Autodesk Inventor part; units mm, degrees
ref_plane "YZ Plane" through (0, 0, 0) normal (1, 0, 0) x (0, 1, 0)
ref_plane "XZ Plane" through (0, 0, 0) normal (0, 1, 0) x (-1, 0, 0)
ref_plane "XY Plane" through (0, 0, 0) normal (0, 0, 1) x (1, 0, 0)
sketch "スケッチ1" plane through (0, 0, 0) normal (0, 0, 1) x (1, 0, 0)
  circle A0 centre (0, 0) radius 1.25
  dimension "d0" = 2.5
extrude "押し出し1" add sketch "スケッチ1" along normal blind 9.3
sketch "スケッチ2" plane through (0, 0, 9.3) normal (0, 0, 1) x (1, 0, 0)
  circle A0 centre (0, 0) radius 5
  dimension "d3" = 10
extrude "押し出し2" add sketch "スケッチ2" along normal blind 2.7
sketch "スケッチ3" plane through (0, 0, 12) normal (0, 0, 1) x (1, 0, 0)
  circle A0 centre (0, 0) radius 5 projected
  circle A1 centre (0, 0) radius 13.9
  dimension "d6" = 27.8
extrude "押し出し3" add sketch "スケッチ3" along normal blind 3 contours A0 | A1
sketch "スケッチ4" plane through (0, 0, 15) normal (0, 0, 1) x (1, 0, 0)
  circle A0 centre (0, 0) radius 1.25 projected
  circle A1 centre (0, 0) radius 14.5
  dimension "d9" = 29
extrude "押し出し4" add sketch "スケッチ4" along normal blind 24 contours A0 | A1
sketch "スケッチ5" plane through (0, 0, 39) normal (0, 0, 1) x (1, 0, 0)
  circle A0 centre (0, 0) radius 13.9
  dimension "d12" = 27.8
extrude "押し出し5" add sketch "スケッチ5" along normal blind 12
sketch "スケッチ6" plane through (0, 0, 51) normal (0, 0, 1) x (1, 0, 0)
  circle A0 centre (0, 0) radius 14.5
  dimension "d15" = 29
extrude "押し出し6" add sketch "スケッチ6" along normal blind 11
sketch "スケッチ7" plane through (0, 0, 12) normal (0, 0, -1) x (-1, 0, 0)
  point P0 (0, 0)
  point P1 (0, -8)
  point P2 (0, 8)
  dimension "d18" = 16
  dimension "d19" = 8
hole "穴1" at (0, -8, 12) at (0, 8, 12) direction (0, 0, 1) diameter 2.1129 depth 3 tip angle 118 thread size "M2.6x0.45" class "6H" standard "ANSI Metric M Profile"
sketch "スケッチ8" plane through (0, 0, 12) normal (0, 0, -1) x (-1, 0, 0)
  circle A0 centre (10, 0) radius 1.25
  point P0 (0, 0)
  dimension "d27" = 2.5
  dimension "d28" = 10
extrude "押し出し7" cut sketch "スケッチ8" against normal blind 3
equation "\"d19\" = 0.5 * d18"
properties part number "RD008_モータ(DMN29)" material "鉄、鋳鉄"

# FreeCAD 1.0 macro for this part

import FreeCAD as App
import Part
import Sketcher
from FreeCAD import Vector
Q = App.Units.Quantity

doc = App.newDocument("Part")
body = doc.addObject("PartDesign::Body", "Body")

# Sketch on XY plane
sketch1 = body.newObject("Sketcher::SketchObject", "Sketch")
sketch1.AttachmentSupport = (doc.getObject("XY_Plane"), [""])
sketch1.MapMode = "FlatFace"
sketch1.addGeometry(Part.Circle(Vector(0, 0, 0), Vector(0, 0, 1), 1.25), False)
sketch1.addConstraint(Sketcher.Constraint("Coincident", 0, 3, -1, 1))
sketch1.addConstraint(Sketcher.Constraint("Diameter", 0, Q("2.5 mm")))
pad1 = body.newObject("PartDesign::Pad", "Pad")
pad1.Profile = sketch1
pad1.Length = 9.3

# Sketch on XY plane
sketch2 = body.newObject("Sketcher::SketchObject", "Sketch001")
sketch2.AttachmentSupport = (doc.getObject("XY_Plane"), [""])
sketch2.MapMode = "FlatFace"
sketch2.AttachmentOffset = App.Placement(Vector(0, 0, 9.3), App.Rotation())
sketch2.addGeometry(Part.Circle(Vector(0, 0, 0), Vector(0, 0, 1), 5), False)
sketch2.addConstraint(Sketcher.Constraint("Coincident", 0, 3, -1, 1))
sketch2.addConstraint(Sketcher.Constraint("Diameter", 0, Q("10 mm")))
pad2 = body.newObject("PartDesign::Pad", "Pad001")
pad2.Profile = sketch2
pad2.Length = 2.7

# Sketch on XY plane
sketch3 = body.newObject("Sketcher::SketchObject", "Sketch002")
sketch3.AttachmentSupport = (doc.getObject("XY_Plane"), [""])
sketch3.MapMode = "FlatFace"
sketch3.AttachmentOffset = App.Placement(Vector(0, 0, 12), App.Rotation())
sketch3.addGeometry(Part.Circle(Vector(0, 0, 0), Vector(0, 0, 1), 13.9), False)
sketch3.addConstraint(Sketcher.Constraint("Coincident", 0, 3, -1, 1))
sketch3.addConstraint(Sketcher.Constraint("Diameter", 0, Q("27.8 mm")))
pad3 = body.newObject("PartDesign::Pad", "Pad002")
pad3.Profile = sketch3
pad3.Length = 3

# Sketch on XY plane
sketch4 = body.newObject("Sketcher::SketchObject", "Sketch003")
sketch4.AttachmentSupport = (doc.getObject("XY_Plane"), [""])
sketch4.MapMode = "FlatFace"
sketch4.AttachmentOffset = App.Placement(Vector(0, 0, 15), App.Rotation())
sketch4.addGeometry(Part.Circle(Vector(0, 0, 0), Vector(0, 0, 1), 14.5), False)
sketch4.addConstraint(Sketcher.Constraint("Coincident", 0, 3, -1, 1))
sketch4.addConstraint(Sketcher.Constraint("Diameter", 0, Q("29 mm")))
pad4 = body.newObject("PartDesign::Pad", "Pad003")
pad4.Profile = sketch4
pad4.Length = 24

# Sketch on XY plane
sketch5 = body.newObject("Sketcher::SketchObject", "Sketch004")
sketch5.AttachmentSupport = (doc.getObject("XY_Plane"), [""])
sketch5.MapMode = "FlatFace"
sketch5.AttachmentOffset = App.Placement(Vector(0, 0, 39), App.Rotation())
sketch5.addGeometry(Part.Circle(Vector(0, 0, 0), Vector(0, 0, 1), 13.9), False)
sketch5.addConstraint(Sketcher.Constraint("Coincident", 0, 3, -1, 1))
sketch5.addConstraint(Sketcher.Constraint("Diameter", 0, Q("27.8 mm")))
pad5 = body.newObject("PartDesign::Pad", "Pad004")
pad5.Profile = sketch5
pad5.Length = 12

# Sketch on XY plane
sketch6 = body.newObject("Sketcher::SketchObject", "Sketch005")
sketch6.AttachmentSupport = (doc.getObject("XY_Plane"), [""])
sketch6.MapMode = "FlatFace"
sketch6.AttachmentOffset = App.Placement(Vector(0, 0, 51), App.Rotation())
sketch6.addGeometry(Part.Circle(Vector(0, 0, 0), Vector(0, 0, 1), 14.5), False)
sketch6.addConstraint(Sketcher.Constraint("Coincident", 0, 3, -1, 1))
sketch6.addConstraint(Sketcher.Constraint("Diameter", 0, Q("29 mm")))
pad6 = body.newObject("PartDesign::Pad", "Pad005")
pad6.Profile = sketch6
pad6.Length = 11

# Sketch on XY plane
sketch7 = body.newObject("Sketcher::SketchObject", "Sketch006")
sketch7.AttachmentSupport = (doc.getObject("XY_Plane"), [""])
sketch7.MapMode = "FlatFace"
sketch7.AttachmentOffset = App.Placement(Vector(0, 0, 12), App.Rotation())
sketch7.addGeometry(Part.Circle(Vector(0, -8, 0), Vector(0, 0, 1), 1.05645), False)
sketch7.addGeometry(Part.Circle(Vector(0, 8, 0), Vector(0, 0, 1), 1.05645), False)
sketch7.addConstraint(Sketcher.Constraint("Equal", 0, 1))
sketch7.addConstraint(Sketcher.Constraint("Symmetric", 0, 3, 1, 3, -1, 1))
sketch7.addConstraint(Sketcher.Constraint("PointOnObject", 0, 3, -2))
sketch7.addConstraint(Sketcher.Constraint("Diameter", 0, Q("2.113 mm")))
sketch7.addConstraint(Sketcher.Constraint("DistanceY", 0, 3, -1, 1, Q("8 mm")))
doc.recompute()
hole = body.newObject("PartDesign::Hole", "Hole")
hole.Profile = sketch7
hole.ThreadType = "None"
hole.Diameter = 2.1129
hole.DepthType = "Dimension"
hole.Depth = 3
hole.DrillPoint = "Angled"
hole.DrillPointAngle = 118
hole.Reversed = True

# Sketch on XY plane
sketch8 = body.newObject("Sketcher::SketchObject", "Sketch007")
sketch8.AttachmentSupport = (doc.getObject("XY_Plane"), [""])
sketch8.MapMode = "FlatFace"
sketch8.AttachmentOffset = App.Placement(Vector(0, 0, 12), App.Rotation())
sketch8.addGeometry(Part.Circle(Vector(-10, 0, 0), Vector(0, 0, 1), 1.25), False)
sketch8.addConstraint(Sketcher.Constraint("PointOnObject", 0, 3, -1))
sketch8.addConstraint(Sketcher.Constraint("Diameter", 0, Q("2.5 mm")))
sketch8.addConstraint(Sketcher.Constraint("DistanceX", 0, 3, -1, 1, Q("10 mm")))
pocket1 = body.newObject("PartDesign::Pocket", "Pocket")
pocket1.Profile = sketch8
pocket1.Length = 3
pocket1.Reversed = True

doc.recompute()
